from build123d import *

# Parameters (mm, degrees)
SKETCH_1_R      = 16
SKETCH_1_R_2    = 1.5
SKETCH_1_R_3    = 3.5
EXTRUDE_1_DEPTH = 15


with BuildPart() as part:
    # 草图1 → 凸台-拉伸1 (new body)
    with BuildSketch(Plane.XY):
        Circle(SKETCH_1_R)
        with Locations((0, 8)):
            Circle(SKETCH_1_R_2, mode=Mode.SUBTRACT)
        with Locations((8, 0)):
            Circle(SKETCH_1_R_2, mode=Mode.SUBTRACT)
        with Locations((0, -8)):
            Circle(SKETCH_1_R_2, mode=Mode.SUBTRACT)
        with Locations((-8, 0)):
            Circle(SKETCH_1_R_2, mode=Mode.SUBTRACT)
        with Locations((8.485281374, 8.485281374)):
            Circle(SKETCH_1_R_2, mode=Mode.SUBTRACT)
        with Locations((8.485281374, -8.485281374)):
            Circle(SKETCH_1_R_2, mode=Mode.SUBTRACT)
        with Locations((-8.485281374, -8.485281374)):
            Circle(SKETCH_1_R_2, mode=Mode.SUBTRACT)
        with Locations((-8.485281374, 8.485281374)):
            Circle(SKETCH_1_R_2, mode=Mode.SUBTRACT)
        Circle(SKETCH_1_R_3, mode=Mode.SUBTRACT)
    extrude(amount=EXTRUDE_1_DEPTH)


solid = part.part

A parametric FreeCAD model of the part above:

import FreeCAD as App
import Part
import Sketcher
Q = App.Units.Quantity

doc = App.newDocument("Part")
body = doc.addObject("PartDesign::Body", "Body")

sketch1 = body.newObject("Sketcher::SketchObject", "Sketch")
sketch1.AttachmentSupport = (doc.getObject("XY_Plane"), [""])
sketch1.MapMode = "FlatFace"
sketch1.addGeometry(Part.Circle(App.Vector(0, 0, 0), App.Vector(0, 0, 1), 16), False)
sketch1.addGeometry(Part.Circle(App.Vector(-8.5, -8.5, 0), App.Vector(0, 0, 1), 1.5), False)
sketch1.addGeometry(Part.Circle(App.Vector(0, -8, 0), App.Vector(0, 0, 1), 1.5), False)
sketch1.addGeometry(Part.Circle(App.Vector(8.5, -8.5, 0), App.Vector(0, 0, 1), 1.5), False)
sketch1.addGeometry(Part.Circle(App.Vector(-8, 0, 0), App.Vector(0, 0, 1), 1.5), False)
sketch1.addGeometry(Part.Circle(App.Vector(-8.5, 8.5, 0), App.Vector(0, 0, 1), 1.5), False)
sketch1.addGeometry(Part.Circle(App.Vector(0, 0, 0), App.Vector(0, 0, 1), 3.5), False)
sketch1.addGeometry(Part.Circle(App.Vector(8, 0, 0), App.Vector(0, 0, 1), 1.5), False)
sketch1.addGeometry(Part.Circle(App.Vector(0, 8, 0), App.Vector(0, 0, 1), 1.5), False)
sketch1.addGeometry(Part.Circle(App.Vector(8.5, 8.5, 0), App.Vector(0, 0, 1), 1.5), False)
sketch1.addConstraint(Sketcher.Constraint("Coincident", 0, 3, -1, 1))
sketch1.addConstraint(Sketcher.Constraint("Coincident", 6, 3, -1, 1))
sketch1.addConstraint(Sketcher.Constraint("Equal", 1, 2))
sketch1.addConstraint(Sketcher.Constraint("Equal", 2, 3))
sketch1.addConstraint(Sketcher.Constraint("Equal", 3, 4))
sketch1.addConstraint(Sketcher.Constraint("Equal", 4, 5))
sketch1.addConstraint(Sketcher.Constraint("Equal", 5, 7))
sketch1.addConstraint(Sketcher.Constraint("Equal", 7, 8))
sketch1.addConstraint(Sketcher.Constraint("Equal", 8, 9))
sketch1.addConstraint(Sketcher.Constraint("Symmetric", 3, 3, 5, 3, -1, 1))
sketch1.addConstraint(Sketcher.Constraint("Symmetric", 4, 3, 7, 3, -1, 1))
sketch1.addConstraint(Sketcher.Constraint("Symmetric", 2, 3, 8, 3, -1, 1))
sketch1.addConstraint(Sketcher.Constraint("Symmetric", 1, 3, 9, 3, -1, 1))
sketch1.addConstraint(Sketcher.Constraint("Symmetric", 1, 3, 3, 3, -2))
sketch1.addConstraint(Sketcher.Constraint("PointOnObject", 2, 3, -2))
sketch1.addConstraint(Sketcher.Constraint("PointOnObject", 4, 3, -1))
sketch1.addConstraint(Sketcher.Constraint("Diameter", 0, Q("32 mm")))
sketch1.addConstraint(Sketcher.Constraint("Diameter", 1, Q("3 mm")))
sketch1.addConstraint(Sketcher.Constraint("Diameter", 6, Q("7 mm")))
sketch1.addConstraint(Sketcher.Constraint("DistanceY", 2, 3, -1, 1, Q("8 mm")))
sketch1.addConstraint(Sketcher.Constraint("DistanceX", 4, 3, -1, 1, Q("8 mm")))
sketch1.addConstraint(Sketcher.Constraint("DistanceX", 1, 3, -1, 1, Q("8.485281 mm")))
sketch1.addConstraint(Sketcher.Constraint("DistanceY", 1, 3, -1, 1, Q("8.485281 mm")))
pad1 = body.newObject("PartDesign::Pad", "Pad")
pad1.Profile = sketch1
pad1.Length = 15

doc.recompute()
